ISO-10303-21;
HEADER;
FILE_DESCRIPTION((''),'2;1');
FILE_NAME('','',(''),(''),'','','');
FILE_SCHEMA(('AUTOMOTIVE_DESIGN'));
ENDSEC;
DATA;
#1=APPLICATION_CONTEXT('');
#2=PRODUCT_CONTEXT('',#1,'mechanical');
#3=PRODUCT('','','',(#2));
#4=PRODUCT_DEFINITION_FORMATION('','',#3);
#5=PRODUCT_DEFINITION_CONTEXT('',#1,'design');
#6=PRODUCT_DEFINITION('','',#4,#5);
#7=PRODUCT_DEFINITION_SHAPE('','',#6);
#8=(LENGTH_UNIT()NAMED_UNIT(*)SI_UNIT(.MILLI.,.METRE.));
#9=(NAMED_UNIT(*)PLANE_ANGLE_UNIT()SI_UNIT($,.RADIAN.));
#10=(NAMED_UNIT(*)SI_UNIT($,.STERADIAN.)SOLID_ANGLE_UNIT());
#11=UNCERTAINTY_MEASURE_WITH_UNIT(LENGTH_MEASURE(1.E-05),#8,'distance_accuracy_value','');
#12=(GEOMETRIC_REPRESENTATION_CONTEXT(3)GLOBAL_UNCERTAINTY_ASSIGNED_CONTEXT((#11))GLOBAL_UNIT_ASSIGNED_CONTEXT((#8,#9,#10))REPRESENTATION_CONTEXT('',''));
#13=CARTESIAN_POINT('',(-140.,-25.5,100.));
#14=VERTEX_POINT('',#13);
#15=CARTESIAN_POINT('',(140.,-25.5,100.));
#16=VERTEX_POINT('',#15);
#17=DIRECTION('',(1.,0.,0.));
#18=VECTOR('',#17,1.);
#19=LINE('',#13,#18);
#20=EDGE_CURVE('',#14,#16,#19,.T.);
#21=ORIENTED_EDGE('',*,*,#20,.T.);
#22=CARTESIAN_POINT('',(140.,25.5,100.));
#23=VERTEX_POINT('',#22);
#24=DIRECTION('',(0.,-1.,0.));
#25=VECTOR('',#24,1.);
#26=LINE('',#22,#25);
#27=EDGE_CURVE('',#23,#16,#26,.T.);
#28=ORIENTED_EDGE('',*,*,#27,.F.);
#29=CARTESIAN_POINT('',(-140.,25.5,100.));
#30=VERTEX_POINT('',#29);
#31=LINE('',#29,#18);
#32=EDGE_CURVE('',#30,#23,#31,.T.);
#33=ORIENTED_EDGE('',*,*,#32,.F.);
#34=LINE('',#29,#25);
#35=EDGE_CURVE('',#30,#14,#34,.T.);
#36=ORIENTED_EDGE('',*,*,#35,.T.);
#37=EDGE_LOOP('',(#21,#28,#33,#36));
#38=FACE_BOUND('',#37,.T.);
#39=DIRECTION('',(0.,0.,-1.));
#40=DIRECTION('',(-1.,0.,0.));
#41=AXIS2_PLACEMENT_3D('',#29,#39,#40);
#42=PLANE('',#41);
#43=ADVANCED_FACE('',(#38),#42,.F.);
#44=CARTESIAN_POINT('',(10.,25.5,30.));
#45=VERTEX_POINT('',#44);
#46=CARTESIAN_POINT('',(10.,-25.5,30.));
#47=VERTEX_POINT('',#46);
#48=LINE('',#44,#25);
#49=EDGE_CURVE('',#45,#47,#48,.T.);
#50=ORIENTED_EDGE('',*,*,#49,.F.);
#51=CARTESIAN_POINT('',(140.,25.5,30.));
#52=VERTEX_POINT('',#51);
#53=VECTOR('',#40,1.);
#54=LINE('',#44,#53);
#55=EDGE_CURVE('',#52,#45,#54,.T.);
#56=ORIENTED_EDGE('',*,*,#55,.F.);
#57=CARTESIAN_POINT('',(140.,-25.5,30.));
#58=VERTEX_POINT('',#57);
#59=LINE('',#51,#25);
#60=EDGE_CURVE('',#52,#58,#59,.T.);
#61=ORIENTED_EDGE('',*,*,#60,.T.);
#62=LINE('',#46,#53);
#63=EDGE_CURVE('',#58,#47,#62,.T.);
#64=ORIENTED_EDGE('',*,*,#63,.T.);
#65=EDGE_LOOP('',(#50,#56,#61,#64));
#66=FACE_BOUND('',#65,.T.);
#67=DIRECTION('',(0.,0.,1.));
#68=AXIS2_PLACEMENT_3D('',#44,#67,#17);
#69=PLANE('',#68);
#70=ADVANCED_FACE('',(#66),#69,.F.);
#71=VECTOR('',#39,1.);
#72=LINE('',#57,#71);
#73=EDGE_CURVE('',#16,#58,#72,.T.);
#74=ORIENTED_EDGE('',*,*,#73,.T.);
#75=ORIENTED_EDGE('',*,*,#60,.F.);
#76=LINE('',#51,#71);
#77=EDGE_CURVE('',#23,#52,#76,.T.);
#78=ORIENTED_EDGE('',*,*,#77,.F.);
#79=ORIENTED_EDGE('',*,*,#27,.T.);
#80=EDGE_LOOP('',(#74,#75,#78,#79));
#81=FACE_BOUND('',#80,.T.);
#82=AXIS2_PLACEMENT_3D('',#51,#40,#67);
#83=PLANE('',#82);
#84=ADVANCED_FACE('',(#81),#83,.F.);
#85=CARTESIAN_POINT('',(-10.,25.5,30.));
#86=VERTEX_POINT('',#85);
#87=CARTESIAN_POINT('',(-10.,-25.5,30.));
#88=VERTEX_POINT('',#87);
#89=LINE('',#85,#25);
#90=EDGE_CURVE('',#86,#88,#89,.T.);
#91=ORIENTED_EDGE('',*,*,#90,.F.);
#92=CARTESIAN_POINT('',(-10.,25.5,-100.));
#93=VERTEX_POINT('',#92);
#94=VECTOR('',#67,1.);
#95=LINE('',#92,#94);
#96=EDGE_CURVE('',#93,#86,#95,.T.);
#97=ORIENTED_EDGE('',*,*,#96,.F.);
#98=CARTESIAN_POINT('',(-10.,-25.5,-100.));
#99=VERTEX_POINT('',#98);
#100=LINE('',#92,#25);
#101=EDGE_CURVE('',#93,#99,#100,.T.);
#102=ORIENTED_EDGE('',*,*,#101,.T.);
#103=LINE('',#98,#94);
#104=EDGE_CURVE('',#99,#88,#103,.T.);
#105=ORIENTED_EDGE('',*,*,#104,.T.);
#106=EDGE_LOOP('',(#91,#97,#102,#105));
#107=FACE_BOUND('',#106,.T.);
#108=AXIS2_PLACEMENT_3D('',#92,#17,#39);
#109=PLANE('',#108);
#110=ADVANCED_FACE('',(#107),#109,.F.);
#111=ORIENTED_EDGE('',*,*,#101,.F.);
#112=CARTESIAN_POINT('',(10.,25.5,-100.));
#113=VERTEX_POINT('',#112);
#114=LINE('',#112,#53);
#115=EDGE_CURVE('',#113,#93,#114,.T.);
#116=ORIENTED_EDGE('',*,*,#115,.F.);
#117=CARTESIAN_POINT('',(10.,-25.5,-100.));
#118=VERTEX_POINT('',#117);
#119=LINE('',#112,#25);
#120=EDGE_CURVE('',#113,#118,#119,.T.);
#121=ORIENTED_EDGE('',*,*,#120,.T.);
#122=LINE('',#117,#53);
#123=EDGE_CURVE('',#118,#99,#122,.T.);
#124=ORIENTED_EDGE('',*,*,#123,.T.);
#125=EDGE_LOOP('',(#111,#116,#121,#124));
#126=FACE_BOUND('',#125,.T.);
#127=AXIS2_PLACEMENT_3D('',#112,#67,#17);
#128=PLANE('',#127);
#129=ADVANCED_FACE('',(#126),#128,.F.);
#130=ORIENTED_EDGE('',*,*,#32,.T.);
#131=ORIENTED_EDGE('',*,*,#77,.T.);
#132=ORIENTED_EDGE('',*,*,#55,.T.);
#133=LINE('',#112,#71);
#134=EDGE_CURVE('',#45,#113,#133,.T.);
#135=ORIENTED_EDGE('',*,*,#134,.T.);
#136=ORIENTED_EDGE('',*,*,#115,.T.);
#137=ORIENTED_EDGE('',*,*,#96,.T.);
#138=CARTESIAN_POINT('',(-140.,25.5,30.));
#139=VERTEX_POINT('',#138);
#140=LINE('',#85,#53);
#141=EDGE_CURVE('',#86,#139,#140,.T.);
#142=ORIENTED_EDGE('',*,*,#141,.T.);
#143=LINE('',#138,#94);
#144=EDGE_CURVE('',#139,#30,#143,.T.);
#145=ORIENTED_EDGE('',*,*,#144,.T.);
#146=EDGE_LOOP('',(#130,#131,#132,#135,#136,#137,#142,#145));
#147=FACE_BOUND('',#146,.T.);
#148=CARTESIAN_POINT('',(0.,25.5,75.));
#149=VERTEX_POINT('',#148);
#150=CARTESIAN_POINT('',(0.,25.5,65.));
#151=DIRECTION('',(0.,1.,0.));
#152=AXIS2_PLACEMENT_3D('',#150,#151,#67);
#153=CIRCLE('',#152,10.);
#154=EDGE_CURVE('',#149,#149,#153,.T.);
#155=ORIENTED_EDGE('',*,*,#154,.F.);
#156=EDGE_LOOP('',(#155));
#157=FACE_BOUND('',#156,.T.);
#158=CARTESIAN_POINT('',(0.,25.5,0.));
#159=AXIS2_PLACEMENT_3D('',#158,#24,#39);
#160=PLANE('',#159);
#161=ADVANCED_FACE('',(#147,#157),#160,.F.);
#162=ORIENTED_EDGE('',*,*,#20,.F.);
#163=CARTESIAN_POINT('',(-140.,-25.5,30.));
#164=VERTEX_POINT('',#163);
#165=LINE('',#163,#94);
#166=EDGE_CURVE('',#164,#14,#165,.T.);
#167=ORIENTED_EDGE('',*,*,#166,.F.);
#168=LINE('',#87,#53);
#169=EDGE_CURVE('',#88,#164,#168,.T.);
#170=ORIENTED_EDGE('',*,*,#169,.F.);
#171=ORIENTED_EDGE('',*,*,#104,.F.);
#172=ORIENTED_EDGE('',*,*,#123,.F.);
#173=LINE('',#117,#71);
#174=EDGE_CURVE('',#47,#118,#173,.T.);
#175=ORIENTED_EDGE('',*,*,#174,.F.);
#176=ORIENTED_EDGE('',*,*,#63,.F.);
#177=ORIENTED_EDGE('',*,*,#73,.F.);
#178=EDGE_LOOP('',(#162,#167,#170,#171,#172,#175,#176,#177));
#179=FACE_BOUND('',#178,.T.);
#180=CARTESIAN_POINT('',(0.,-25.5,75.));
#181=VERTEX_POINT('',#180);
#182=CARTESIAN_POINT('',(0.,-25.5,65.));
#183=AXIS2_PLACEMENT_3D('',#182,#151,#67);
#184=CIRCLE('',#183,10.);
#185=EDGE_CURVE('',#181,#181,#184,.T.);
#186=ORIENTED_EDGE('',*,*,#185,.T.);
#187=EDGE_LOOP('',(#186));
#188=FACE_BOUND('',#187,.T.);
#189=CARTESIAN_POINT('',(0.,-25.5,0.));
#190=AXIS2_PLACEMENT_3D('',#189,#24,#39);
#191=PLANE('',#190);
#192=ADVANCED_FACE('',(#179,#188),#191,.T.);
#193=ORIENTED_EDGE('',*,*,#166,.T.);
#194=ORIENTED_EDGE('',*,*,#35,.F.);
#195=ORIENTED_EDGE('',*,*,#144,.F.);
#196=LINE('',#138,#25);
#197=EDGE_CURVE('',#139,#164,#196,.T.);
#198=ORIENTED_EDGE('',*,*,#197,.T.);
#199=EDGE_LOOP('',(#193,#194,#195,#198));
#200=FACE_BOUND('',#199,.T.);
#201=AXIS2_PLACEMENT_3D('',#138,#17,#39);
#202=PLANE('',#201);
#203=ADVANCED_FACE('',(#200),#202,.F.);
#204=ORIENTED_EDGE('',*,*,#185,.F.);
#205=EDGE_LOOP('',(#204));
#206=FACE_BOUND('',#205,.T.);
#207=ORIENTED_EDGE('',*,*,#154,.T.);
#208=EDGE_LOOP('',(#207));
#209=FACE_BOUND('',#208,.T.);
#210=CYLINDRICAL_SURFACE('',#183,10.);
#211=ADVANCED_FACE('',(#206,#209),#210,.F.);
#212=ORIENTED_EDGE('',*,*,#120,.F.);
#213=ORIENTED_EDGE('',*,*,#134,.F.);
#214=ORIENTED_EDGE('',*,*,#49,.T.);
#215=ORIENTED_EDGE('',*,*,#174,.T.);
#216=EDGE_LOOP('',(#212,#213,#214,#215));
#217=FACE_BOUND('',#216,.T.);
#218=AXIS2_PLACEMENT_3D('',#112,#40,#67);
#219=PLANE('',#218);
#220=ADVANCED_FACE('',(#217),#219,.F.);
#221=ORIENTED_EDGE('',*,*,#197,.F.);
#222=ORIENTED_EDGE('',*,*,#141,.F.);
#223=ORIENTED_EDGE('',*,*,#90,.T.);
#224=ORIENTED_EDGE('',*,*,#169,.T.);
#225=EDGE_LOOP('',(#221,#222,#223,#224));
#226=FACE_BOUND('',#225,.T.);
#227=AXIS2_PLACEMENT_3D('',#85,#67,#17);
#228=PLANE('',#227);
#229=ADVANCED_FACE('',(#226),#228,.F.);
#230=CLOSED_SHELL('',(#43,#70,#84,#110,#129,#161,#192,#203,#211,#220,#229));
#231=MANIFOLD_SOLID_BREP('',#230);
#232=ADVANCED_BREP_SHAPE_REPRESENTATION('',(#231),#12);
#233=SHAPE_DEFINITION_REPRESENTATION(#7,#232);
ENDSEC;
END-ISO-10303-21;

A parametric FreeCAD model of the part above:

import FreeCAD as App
import Part
import Sketcher
Q = App.Units.Quantity


def add_polygon(sketch, points):
    """Adds a closed chain of lines whose ends are joined by coincident constraints."""
    first, n = sketch.GeometryCount, len(points)
    for a, b in zip(points, points[1:] + points[:1]):
        sketch.addGeometry(Part.LineSegment(App.Vector(*a, 0), App.Vector(*b, 0)), False)
    for i in range(n):
        sketch.addConstraint(Sketcher.Constraint("Coincident", first + i, 2, first + (i + 1) % n, 1))

doc = App.newDocument("Part")
params = doc.addObject("Spreadsheet::Sheet", "Params")
for row, (alias, value) in enumerate([
    ("sketch1_width", "20 mm"),
    ("sketch1_width2", "130 mm"),
    ("sketch1_height", "70 mm"),
    ("pad1_length", "51 mm"),
    ("sketch2_diameter", "20 mm"),
], start=1):
    params.set(f"A{row}", alias)
    params.set(f"B{row}", "=" + value)
    params.setAlias(f"B{row}", alias)

body = doc.addObject("PartDesign::Body", "Body")

# Sketch on XZ plane
sketch1 = body.newObject("Sketcher::SketchObject", "Sketch")
sketch1.AttachmentSupport = (doc.getObject("XZ_Plane"), [""])
sketch1.MapMode = "FlatFace"
add_polygon(sketch1, [(10, -100), (-10, -100), (-10, 30), (-140, 30), (-140, 100), (140, 100), (140, 30), (10, 30)])  # lines 0-7
sketch1.addConstraint(Sketcher.Constraint("Horizontal", 0))
sketch1.addConstraint(Sketcher.Constraint("Vertical", 1))
sketch1.addConstraint(Sketcher.Constraint("Horizontal", 2))
sketch1.addConstraint(Sketcher.Constraint("Vertical", 3))
sketch1.addConstraint(Sketcher.Constraint("Horizontal", 4))
sketch1.addConstraint(Sketcher.Constraint("Vertical", 5))
sketch1.addConstraint(Sketcher.Constraint("Horizontal", 6))
sketch1.addConstraint(Sketcher.Constraint("Vertical", 7))
sketch1.addConstraint(Sketcher.Constraint("Symmetric", 2, 2, 5, 2, -2))
sketch1.addConstraint(Sketcher.Constraint("Equal", 2, 6))
sketch1.addConstraint(Sketcher.Constraint("Equal", 6, 1))
sketch1.addConstraint(Sketcher.Constraint("DistanceX", 0, 2, 0, 1, Q("20 mm")))
sketch1.addConstraint(Sketcher.Constraint("DistanceX", 2, 2, 2, 1, Q("130 mm")))
sketch1.addConstraint(Sketcher.Constraint("DistanceY", 3, 1, 3, 2, Q("70 mm")))
sketch1.addConstraint(Sketcher.Constraint("DistanceY", 0, 2, -1, 1, Q("100 mm")))
sketch1.setExpression("Constraints[19]", "Params.sketch1_width")
sketch1.setExpression("Constraints[20]", "Params.sketch1_width2")
sketch1.setExpression("Constraints[21]", "Params.sketch1_height")
pad1 = body.newObject("PartDesign::Pad", "Pad")
pad1.Profile = sketch1
pad1.setExpression("Length", "Params.pad1_length")
pad1.Midplane = True

# Sketch on XZ plane
sketch2 = body.newObject("Sketcher::SketchObject", "Sketch001")
sketch2.AttachmentSupport = (doc.getObject("XZ_Plane"), [""])
sketch2.MapMode = "FlatFace"
sketch2.addGeometry(Part.Circle(App.Vector(0, 65, 0), App.Vector(0, 0, 1), 10), False)
sketch2.addConstraint(Sketcher.Constraint("PointOnObject", 0, 3, -2))
sketch2.addConstraint(Sketcher.Constraint("Diameter", 0, Q("20 mm")))
sketch2.addConstraint(Sketcher.Constraint("DistanceY", -1, 1, 0, 3, Q("65 mm")))
sketch2.setExpression("Constraints[1]", "Params.sketch2_diameter")
pocket1 = body.newObject("PartDesign::Pocket", "Pocket")
pocket1.Profile = sketch2
pocket1.Type = "ThroughAll"
pocket1.Midplane = True

doc.recompute()
